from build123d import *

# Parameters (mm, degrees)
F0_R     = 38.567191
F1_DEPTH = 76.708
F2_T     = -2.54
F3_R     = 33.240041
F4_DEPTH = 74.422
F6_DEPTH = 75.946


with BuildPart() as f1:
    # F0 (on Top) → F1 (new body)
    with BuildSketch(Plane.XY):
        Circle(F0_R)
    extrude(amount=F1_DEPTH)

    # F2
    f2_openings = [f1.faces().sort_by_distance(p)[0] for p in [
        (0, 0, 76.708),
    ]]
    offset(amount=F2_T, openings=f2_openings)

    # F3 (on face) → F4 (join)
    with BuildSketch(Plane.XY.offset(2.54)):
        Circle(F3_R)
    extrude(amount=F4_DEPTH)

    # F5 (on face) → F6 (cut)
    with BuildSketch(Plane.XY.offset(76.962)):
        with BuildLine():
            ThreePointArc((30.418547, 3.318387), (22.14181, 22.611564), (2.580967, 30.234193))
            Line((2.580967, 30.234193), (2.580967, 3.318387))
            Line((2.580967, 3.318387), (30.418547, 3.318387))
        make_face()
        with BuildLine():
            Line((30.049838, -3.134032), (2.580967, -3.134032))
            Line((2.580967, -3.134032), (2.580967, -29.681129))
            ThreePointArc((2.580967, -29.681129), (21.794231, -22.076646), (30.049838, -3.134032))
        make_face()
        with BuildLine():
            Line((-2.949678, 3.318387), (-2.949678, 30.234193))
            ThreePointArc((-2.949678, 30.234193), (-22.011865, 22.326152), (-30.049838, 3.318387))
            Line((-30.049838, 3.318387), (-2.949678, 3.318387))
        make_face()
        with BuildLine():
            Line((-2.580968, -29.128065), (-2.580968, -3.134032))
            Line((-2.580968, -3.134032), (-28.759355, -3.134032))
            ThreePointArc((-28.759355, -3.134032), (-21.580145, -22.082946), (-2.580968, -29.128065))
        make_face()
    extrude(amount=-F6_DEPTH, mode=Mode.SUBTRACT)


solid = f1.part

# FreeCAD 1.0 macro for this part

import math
import FreeCAD as App
import Part
import Sketcher

V = App.Vector
Q = App.Units.Quantity


def faces_at(feature, points):
    """Names of the faces that lie closest to the given points."""
    faces = feature.Shape.Faces
    near = lambda p: min(range(len(faces)), key=lambda i: faces[i].distToShape(Part.Vertex(*p))[0])
    return sorted({f"Face{near(p) + 1}" for p in points})

doc = App.newDocument("Part")
body = doc.addObject("PartDesign::Body", "Body")

# Sketch on XY plane
sketch1 = body.newObject("Sketcher::SketchObject", "Sketch")
sketch1.AttachmentSupport = (doc.getObject("XY_Plane"), [""])
sketch1.MapMode = "FlatFace"
sketch1.addGeometry(Part.Circle(V(0, 0, 0), V(0, 0, 1), 39), False)
sketch1.addConstraint([
    Sketcher.Constraint("Coincident", 0, 3, -1, 1),
    Sketcher.Constraint("Diameter", 0, 77.134382),
])
pad1 = body.newObject("PartDesign::Pad", "Pad")
pad1.Profile = sketch1
pad1.Length = Q("3.02 in")
doc.recompute()

thickness = body.newObject("PartDesign::Thickness", "Thickness")
thickness.Base = (pad1, faces_at(pad1, [(0, 0, 76.708)]))
thickness.Value = Q("0.1 in")
thickness.Reversed = True
thickness.Join = "Arc"

# Sketch on XY plane
sketch2 = body.newObject("Sketcher::SketchObject", "Sketch001")
sketch2.AttachmentSupport = (doc.getObject("XY_Plane"), [""])
sketch2.MapMode = "FlatFace"
sketch2.AttachmentOffset = App.Placement(V(0, 0, 0.1 * 25.4), App.Rotation())
sketch2.addGeometry(Part.Circle(V(0, 0, 0), V(0, 0, 1), 33), False)
sketch2.addConstraint([
    Sketcher.Constraint("Coincident", 0, 3, -1, 1),
    Sketcher.Constraint("Diameter", 0, 66.480082),
])
pad2 = body.newObject("PartDesign::Pad", "Pad001")
pad2.Profile = sketch2
pad2.Length = Q("2.93 in")

# Sketch on XY plane
sketch3 = body.newObject("Sketcher::SketchObject", "Sketch002")
sketch3.AttachmentSupport = (doc.getObject("XY_Plane"), [""])
sketch3.MapMode = "FlatFace"
sketch3.AttachmentOffset = App.Placement(V(0, 0, 3.03 * 25.4), App.Rotation())
sketch3.addGeometry([
    Part.ArcOfCircle(Part.Circle(V(3, 3, 0), V(0, 0, 1), 27), math.radians(0), math.radians(91)),  # 0
    Part.LineSegment(V(3, 30, 0), V(3, 3, 0)),  # 1
    Part.LineSegment(V(3, 3, 0), V(30, 3, 0)),  # 2
    Part.LineSegment(V(30, -3, 0), V(3, -3, 0)),  # 3
    Part.LineSegment(V(3, -3, 0), V(3, -30, 0)),  # 4
    Part.ArcOfCircle(Part.Circle(V(3, -3, 0), V(0, 0, 1), 27), math.radians(-91), math.radians(-1)),  # 5
    Part.LineSegment(V(-3, 3, 0), V(-3, 30, 0)),  # 6
    Part.ArcOfCircle(Part.Circle(V(-3, 3, 0), V(0, 0, 1), 27), math.radians(90), math.radians(179)),  # 7
    Part.LineSegment(V(-30, 3, 0), V(-3, 3, 0)),  # 8
    Part.LineSegment(V(-3, -29, 0), V(-3, -3, 0)),  # 9
    Part.LineSegment(V(-3, -3, 0), V(-29, -3, 0)),  # 10
    Part.ArcOfCircle(Part.Circle(V(-4, -5, 0), V(0, 0, 1), 24), math.radians(176), math.radians(274)),  # 11
], False)
sketch3.addConstraint([
    Sketcher.Constraint("Coincident", 0, 2, 1, 1),
    Sketcher.Constraint("Coincident", 1, 2, 2, 1),
    Sketcher.Constraint("Coincident", 2, 2, 0, 1),
    Sketcher.Constraint("Coincident", 3, 2, 4, 1),
    Sketcher.Constraint("Coincident", 4, 2, 5, 1),
    Sketcher.Constraint("Coincident", 5, 2, 3, 1),
    Sketcher.Constraint("Coincident", 6, 2, 7, 1),
    Sketcher.Constraint("Coincident", 7, 2, 8, 1),
    Sketcher.Constraint("Coincident", 8, 2, 6, 1),
    Sketcher.Constraint("Coincident", 9, 2, 10, 1),
    Sketcher.Constraint("Coincident", 10, 2, 11, 1),
    Sketcher.Constraint("Coincident", 11, 2, 9, 1),
    Sketcher.Constraint("Vertical", 1),
    Sketcher.Constraint("Horizontal", 2),
    Sketcher.Constraint("Horizontal", 3),
    Sketcher.Constraint("Vertical", 4),
    Sketcher.Constraint("Vertical", 6),
    Sketcher.Constraint("Horizontal", 8),
    Sketcher.Constraint("Vertical", 9),
    Sketcher.Constraint("Horizontal", 10),
    Sketcher.Constraint("Symmetric", 3, 2, 9, 2, -2),
    Sketcher.Constraint("Horizontal", 0, 2, 6, 2),
    Sketcher.Constraint("Horizontal", 2, 2, 7, 2),
    Sketcher.Constraint("Vertical", 1, 2, 3, 2),
    Sketcher.Constraint("Radius", 11, 24.476551),
    Sketcher.Constraint("Radius", 0, 27.149158),
    Sketcher.Constraint("Radius", 5, 27.079093),
    Sketcher.Constraint("Radius", 7, 27.224623),
    Sketcher.Constraint("DistanceX", 2, 1, 2, 2, 27.83758),
    Sketcher.Constraint("DistanceX", 3, 2, 3, 1, 27.468871),
    Sketcher.Constraint("DistanceX", 8, 1, 8, 2, 27.10016),
    Sketcher.Constraint("DistanceY", 0, 3, 1, 2, 0.224599),
    Sketcher.Constraint("DistanceX", 10, 2, 10, 1, 26.178387),
    Sketcher.Constraint("DistanceY", 4, 2, 4, 1, 26.547097),
    Sketcher.Constraint("DistanceY", 9, 1, 9, 2, 25.994033),
    Sketcher.Constraint("DistanceX", -1, 1, 0, 3, 3.270318),
    Sketcher.Constraint("DistanceY", -1, 1, 0, 3, 3.093788),
    Sketcher.Constraint("DistanceY", 3, 2, -1, 1, 3.134032),
    Sketcher.Constraint("DistanceX", 6, 2, -1, 1, 2.949678),
])
pocket1 = body.newObject("PartDesign::Pocket", "Pocket")
pocket1.Profile = sketch3
pocket1.Length = Q("2.99 in")

doc.recompute()
